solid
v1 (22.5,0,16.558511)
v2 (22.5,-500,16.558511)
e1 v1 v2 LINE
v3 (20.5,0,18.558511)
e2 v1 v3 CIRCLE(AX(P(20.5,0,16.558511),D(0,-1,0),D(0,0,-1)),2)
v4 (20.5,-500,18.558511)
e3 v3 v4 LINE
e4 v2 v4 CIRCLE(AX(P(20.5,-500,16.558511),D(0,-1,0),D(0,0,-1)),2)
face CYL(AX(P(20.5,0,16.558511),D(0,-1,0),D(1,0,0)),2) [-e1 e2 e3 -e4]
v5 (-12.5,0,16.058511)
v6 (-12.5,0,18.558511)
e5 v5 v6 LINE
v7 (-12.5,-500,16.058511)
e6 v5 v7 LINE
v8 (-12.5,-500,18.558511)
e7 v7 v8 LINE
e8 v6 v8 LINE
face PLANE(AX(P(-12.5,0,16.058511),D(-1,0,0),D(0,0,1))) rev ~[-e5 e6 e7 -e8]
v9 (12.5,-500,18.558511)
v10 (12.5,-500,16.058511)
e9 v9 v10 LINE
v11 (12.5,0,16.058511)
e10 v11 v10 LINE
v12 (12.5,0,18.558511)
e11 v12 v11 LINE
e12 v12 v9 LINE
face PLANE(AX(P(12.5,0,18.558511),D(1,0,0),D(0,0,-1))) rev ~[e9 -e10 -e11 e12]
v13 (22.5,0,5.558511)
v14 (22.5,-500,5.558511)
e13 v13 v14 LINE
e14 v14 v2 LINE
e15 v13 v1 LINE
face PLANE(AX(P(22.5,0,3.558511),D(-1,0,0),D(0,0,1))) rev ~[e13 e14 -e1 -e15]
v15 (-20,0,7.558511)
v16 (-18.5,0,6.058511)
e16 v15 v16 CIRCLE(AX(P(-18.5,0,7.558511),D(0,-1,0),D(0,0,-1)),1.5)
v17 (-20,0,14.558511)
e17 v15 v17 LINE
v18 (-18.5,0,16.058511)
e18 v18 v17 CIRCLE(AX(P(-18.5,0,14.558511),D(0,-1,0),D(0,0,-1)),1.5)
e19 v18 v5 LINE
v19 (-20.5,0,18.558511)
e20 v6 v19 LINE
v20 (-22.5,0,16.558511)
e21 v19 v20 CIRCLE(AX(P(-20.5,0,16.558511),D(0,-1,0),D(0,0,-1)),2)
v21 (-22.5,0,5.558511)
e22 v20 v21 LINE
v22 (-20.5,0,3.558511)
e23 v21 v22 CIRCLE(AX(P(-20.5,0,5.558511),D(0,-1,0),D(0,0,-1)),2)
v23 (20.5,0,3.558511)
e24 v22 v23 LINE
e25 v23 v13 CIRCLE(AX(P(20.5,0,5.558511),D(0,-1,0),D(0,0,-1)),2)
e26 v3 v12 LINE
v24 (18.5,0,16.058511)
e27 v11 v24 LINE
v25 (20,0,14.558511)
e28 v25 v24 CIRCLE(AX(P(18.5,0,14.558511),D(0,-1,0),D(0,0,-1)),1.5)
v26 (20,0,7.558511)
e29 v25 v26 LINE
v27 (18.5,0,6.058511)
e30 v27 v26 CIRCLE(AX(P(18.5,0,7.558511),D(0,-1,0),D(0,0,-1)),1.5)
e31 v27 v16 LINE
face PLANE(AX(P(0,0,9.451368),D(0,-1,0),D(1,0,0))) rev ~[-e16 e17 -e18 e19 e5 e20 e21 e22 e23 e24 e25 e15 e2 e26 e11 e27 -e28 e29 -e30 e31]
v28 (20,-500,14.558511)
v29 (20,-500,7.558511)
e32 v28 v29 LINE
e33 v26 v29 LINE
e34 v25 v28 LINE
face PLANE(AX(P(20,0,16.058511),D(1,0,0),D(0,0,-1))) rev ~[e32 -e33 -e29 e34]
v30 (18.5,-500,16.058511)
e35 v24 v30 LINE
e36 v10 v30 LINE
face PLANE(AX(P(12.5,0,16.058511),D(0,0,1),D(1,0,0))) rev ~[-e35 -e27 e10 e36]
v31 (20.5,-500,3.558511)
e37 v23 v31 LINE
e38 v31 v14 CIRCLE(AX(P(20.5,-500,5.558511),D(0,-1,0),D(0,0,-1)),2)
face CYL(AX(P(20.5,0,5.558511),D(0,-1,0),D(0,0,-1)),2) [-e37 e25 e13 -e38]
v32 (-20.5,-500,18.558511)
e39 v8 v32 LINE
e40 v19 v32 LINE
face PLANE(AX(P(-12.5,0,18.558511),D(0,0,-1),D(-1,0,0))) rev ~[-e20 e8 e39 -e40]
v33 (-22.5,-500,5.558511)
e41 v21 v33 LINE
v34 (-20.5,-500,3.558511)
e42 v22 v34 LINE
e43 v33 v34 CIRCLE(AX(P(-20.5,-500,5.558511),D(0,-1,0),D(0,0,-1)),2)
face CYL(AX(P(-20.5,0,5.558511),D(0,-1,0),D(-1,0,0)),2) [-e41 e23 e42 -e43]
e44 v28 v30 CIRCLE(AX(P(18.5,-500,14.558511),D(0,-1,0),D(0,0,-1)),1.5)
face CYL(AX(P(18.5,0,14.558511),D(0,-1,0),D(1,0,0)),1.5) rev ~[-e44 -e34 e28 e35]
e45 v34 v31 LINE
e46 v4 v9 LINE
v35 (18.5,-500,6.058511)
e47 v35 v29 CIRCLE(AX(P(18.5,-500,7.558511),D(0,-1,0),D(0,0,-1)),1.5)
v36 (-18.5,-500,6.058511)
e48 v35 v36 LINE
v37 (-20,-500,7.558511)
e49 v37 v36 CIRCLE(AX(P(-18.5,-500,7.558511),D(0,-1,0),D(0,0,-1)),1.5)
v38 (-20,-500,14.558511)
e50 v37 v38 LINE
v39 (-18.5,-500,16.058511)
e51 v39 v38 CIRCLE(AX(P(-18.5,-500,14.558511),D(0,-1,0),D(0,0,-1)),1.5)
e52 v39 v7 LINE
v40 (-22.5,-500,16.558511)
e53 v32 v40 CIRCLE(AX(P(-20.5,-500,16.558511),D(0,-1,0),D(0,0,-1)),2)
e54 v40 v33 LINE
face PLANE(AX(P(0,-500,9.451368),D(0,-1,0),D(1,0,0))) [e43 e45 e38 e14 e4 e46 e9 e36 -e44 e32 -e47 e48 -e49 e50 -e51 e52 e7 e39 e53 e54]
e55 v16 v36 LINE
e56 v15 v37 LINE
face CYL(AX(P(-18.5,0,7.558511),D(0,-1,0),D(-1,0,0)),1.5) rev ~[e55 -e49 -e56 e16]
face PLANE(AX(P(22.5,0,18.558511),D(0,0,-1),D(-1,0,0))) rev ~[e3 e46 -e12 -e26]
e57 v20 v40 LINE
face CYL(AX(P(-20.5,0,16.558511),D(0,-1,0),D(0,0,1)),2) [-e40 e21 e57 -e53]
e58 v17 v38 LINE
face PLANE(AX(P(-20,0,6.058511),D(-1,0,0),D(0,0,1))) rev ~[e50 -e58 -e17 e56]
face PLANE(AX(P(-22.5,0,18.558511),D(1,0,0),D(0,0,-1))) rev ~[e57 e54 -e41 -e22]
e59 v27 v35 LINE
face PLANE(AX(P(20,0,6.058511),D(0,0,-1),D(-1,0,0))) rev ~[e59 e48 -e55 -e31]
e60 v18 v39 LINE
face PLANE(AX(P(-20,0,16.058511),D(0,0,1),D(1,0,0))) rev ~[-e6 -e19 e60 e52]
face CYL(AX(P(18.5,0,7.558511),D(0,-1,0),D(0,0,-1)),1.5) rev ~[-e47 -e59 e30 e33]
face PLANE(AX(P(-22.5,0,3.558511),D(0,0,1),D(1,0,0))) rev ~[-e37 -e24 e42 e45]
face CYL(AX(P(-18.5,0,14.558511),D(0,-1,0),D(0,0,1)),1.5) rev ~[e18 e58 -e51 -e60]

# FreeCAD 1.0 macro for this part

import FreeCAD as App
import Part
import Sketcher
Q = App.Units.Quantity


def edges_at(feature, points):
    """Names of the edges that pass closest to the given points."""
    edges = feature.Shape.Edges
    near = lambda p: min(range(len(edges)), key=lambda i: edges[i].distToShape(Part.Vertex(*p))[0])
    return sorted({f"Edge{near(p) + 1}" for p in points})

doc = App.newDocument("Part")
body = doc.addObject("PartDesign::Body", "Body")

# Sketch on XZ plane
sketch1 = body.newObject("Sketcher::SketchObject", "Sketch")
sketch1.AttachmentSupport = (doc.getObject("XZ_Plane"), [""])
sketch1.MapMode = "FlatFace"
sketch1.addGeometry([
    Part.LineSegment(App.Vector(-12.5, 18.6, 0), App.Vector(-22.5, 18.6, 0)),  # 0
    Part.LineSegment(App.Vector(-22.5, 18.6, 0), App.Vector(-22.5, 3.6, 0)),  # 1
    Part.LineSegment(App.Vector(-22.5, 3.6, 0), App.Vector(22.5, 3.6, 0)),  # 2
    Part.LineSegment(App.Vector(22.5, 3.6, 0), App.Vector(22.5, 18.6, 0)),  # 3
    Part.LineSegment(App.Vector(22.5, 18.6, 0), App.Vector(12.5, 18.6, 0)),  # 4
    Part.LineSegment(App.Vector(12.5, 18.6, 0), App.Vector(12.5, 16.1, 0)),  # 5
    Part.LineSegment(App.Vector(12.5, 16.1, 0), App.Vector(20, 16.1, 0)),  # 6
    Part.LineSegment(App.Vector(20, 16.1, 0), App.Vector(20, 6.1, 0)),  # 7
    Part.LineSegment(App.Vector(20, 6.1, 0), App.Vector(-20, 6.1, 0)),  # 8
    Part.LineSegment(App.Vector(-20, 6.1, 0), App.Vector(-20, 16.1, 0)),  # 9
    Part.LineSegment(App.Vector(-20, 16.1, 0), App.Vector(-12.5, 16.1, 0)),  # 10
    Part.LineSegment(App.Vector(-12.5, 16.1, 0), App.Vector(-12.5, 18.6, 0)),  # 11
], False)
sketch1.addConstraint([
    Sketcher.Constraint("Coincident", 0, 2, 1, 1),
    Sketcher.Constraint("Coincident", 1, 2, 2, 1),
    Sketcher.Constraint("Coincident", 2, 2, 3, 1),
    Sketcher.Constraint("Coincident", 3, 2, 4, 1),
    Sketcher.Constraint("Coincident", 4, 2, 5, 1),
    Sketcher.Constraint("Coincident", 5, 2, 6, 1),
    Sketcher.Constraint("Coincident", 6, 2, 7, 1),
    Sketcher.Constraint("Coincident", 7, 2, 8, 1),
    Sketcher.Constraint("Coincident", 8, 2, 9, 1),
    Sketcher.Constraint("Coincident", 9, 2, 10, 1),
    Sketcher.Constraint("Coincident", 10, 2, 11, 1),
    Sketcher.Constraint("Coincident", 11, 2, 0, 1),
    Sketcher.Constraint("Horizontal", 0),
    Sketcher.Constraint("Vertical", 1),
    Sketcher.Constraint("Horizontal", 2),
    Sketcher.Constraint("Vertical", 3),
    Sketcher.Constraint("Horizontal", 4),
    Sketcher.Constraint("Vertical", 5),
    Sketcher.Constraint("Horizontal", 6),
    Sketcher.Constraint("Vertical", 7),
    Sketcher.Constraint("Horizontal", 8),
    Sketcher.Constraint("Vertical", 9),
    Sketcher.Constraint("Horizontal", 10),
    Sketcher.Constraint("Vertical", 11),
    Sketcher.Constraint("Symmetric", 0, 2, 3, 2, -2),
    Sketcher.Constraint("Symmetric", 6, 2, 9, 2, -2),
    Sketcher.Constraint("Equal", 0, 4),
    Sketcher.Constraint("Equal", 4, 7),
    Sketcher.Constraint("DistanceX", 0, 2, 0, 1, Q("10 mm")),
    Sketcher.Constraint("DistanceX", 2, 1, 2, 2, Q("45 mm")),
    Sketcher.Constraint("DistanceX", 8, 2, 8, 1, Q("40 mm")),
    Sketcher.Constraint("DistanceY", 1, 2, 1, 1, Q("15 mm")),
    Sketcher.Constraint("DistanceY", 5, 2, 5, 1, Q("2.5 mm")),
    Sketcher.Constraint("DistanceY", -1, 1, 0, 2, Q("18.558511 mm")),
])
pad1 = body.newObject("PartDesign::Pad", "Pad")
pad1.Profile = sketch1
pad1.Length = 500
doc.recompute()

fillet = body.newObject("PartDesign::Fillet", "Fillet")
fillet.Base = (pad1, edges_at(pad1, [
    (22.5, -250, 18.559),
    (-22.5, -250, 18.559),
    (-22.5, -250, 3.559),
    (22.5, -250, 3.559),
]))
fillet.Radius = 2
doc.recompute()

fillet2 = body.newObject("PartDesign::Fillet", "Fillet001")
fillet2.Base = (fillet, edges_at(fillet, [(20, -250, 16.059), (-20, -250, 16.059)]))
fillet2.Radius = 1.5
doc.recompute()

fillet3 = body.newObject("PartDesign::Fillet", "Fillet002")
fillet3.Base = (fillet2, edges_at(fillet2, [(-20, -250, 6.059), (20, -250, 6.059)]))
fillet3.Radius = 1.5

doc.recompute()
